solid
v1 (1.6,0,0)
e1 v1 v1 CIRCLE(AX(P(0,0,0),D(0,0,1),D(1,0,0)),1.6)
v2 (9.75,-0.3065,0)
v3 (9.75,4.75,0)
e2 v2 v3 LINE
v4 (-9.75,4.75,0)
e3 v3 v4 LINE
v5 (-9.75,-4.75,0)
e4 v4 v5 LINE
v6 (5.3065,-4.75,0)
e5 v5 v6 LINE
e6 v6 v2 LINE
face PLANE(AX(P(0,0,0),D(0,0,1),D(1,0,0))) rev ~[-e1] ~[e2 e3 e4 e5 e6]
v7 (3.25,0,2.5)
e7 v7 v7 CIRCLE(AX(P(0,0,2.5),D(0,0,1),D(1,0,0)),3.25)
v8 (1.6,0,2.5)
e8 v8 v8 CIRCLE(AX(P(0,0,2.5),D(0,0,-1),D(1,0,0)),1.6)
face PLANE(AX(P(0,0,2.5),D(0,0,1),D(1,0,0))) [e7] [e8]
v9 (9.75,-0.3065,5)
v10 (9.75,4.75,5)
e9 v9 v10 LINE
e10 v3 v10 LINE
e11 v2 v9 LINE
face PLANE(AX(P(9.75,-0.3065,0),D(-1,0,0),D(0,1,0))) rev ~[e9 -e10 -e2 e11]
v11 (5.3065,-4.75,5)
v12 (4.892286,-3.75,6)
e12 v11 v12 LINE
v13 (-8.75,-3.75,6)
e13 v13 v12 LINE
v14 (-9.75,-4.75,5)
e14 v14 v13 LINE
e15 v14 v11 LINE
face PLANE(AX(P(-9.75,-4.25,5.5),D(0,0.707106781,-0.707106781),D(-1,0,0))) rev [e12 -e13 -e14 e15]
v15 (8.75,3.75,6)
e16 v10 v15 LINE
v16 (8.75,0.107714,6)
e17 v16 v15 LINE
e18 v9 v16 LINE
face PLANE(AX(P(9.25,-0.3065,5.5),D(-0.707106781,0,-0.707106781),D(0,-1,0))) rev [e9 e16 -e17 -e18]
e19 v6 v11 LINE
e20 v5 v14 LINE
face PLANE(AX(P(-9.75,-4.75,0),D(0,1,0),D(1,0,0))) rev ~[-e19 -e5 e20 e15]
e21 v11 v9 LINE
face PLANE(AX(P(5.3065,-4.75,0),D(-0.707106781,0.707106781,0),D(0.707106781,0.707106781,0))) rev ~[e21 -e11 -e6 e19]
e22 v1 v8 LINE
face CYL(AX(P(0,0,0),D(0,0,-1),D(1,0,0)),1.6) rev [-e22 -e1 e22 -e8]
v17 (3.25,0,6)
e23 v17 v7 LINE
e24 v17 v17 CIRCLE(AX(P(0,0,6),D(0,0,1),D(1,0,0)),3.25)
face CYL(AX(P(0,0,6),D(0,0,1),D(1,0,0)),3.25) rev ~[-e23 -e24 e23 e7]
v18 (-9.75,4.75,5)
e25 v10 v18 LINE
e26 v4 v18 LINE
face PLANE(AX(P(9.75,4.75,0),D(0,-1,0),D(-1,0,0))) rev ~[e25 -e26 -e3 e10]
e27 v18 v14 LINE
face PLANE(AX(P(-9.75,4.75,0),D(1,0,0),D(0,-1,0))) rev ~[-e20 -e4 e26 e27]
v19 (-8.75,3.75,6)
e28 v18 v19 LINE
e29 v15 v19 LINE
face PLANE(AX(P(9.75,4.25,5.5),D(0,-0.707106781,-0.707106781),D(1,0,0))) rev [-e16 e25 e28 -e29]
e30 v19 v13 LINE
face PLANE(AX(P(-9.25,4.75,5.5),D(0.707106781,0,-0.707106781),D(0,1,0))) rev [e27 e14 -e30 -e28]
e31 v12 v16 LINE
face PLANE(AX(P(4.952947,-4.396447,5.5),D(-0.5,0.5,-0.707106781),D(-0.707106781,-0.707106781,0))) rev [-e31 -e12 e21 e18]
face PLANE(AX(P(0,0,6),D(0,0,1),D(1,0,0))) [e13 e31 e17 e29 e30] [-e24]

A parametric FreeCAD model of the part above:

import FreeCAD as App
import Part
import Sketcher
from FreeCAD import Vector
Q = App.Units.Quantity


def edges_at(feature, points):
    """Names of the edges that pass closest to the given points."""
    edges = feature.Shape.Edges
    near = lambda p: min(range(len(edges)), key=lambda i: edges[i].distToShape(Part.Vertex(*p))[0])
    return sorted({f"Edge{near(p) + 1}" for p in points})

doc = App.newDocument("Part")
params = doc.addObject("Spreadsheet::Sheet", "Params")
for row, (alias, value) in enumerate([
    ("sketch1_diameter", "3.2 mm"),
    ("sketch1_width", "19.5 mm"),
    ("sketch1_height", "9.5 mm"),
    ("pad1_length", "6 mm"),
    ("chamfer_size", "1 mm"),
    ("sketch2_diameter", "6.5 mm"),
    ("pocket1_length", "3.5 mm"),
], start=1):
    params.set(f"A{row}", alias)
    params.set(f"B{row}", "=" + value)
    params.setAlias(f"B{row}", alias)

body = doc.addObject("PartDesign::Body", "Body")

# Sketch on XY plane
sketch1 = body.newObject("Sketcher::SketchObject", "Sketch")
sketch1.AttachmentSupport = (doc.getObject("XY_Plane"), [""])
sketch1.MapMode = "FlatFace"
sketch1.addGeometry([
    Part.LineSegment(Vector(5.3, -4.8, 0), Vector(9.8, -0.3, 0)),  # 0
    Part.LineSegment(Vector(9.8, -0.3, 0), Vector(9.8, 4.8, 0)),  # 1
    Part.LineSegment(Vector(9.8, 4.8, 0), Vector(-9.8, 4.8, 0)),  # 2
    Part.LineSegment(Vector(-9.8, 4.8, 0), Vector(-9.8, -4.8, 0)),  # 3
    Part.LineSegment(Vector(-9.8, -4.8, 0), Vector(5.3, -4.8, 0)),  # 4
    Part.Circle(Vector(0, 0, 0), Vector(0, 0, 1), 1.6),  # 5
], False)
sketch1.addConstraint([
    Sketcher.Constraint("Coincident", 0, 2, 1, 1),
    Sketcher.Constraint("Coincident", 1, 2, 2, 1),
    Sketcher.Constraint("Coincident", 2, 2, 3, 1),
    Sketcher.Constraint("Coincident", 3, 2, 4, 1),
    Sketcher.Constraint("Coincident", 4, 2, 0, 1),
    Sketcher.Constraint("Vertical", 1),
    Sketcher.Constraint("Horizontal", 2),
    Sketcher.Constraint("Vertical", 3),
    Sketcher.Constraint("Horizontal", 4),
    Sketcher.Constraint("Coincident", 5, 3, -1, 1),
    Sketcher.Constraint("Symmetric", 1, 2, 3, 2, -1, 1),
    Sketcher.Constraint("Diameter", 5, 3.2),
    Sketcher.Constraint("Angle", 0, Q("45 deg")),
    Sketcher.Constraint("DistanceX", 2, 2, 2, 1, 19.5),
    Sketcher.Constraint("DistanceY", 3, 2, 3, 1, 9.5),
    Sketcher.Constraint("Distance", 0, 6.284),
])
sketch1.setExpression("Constraints[11]", "Params.sketch1_diameter")
sketch1.setExpression("Constraints[13]", "Params.sketch1_width")
sketch1.setExpression("Constraints[14]", "Params.sketch1_height")
pad1 = body.newObject("PartDesign::Pad", "Pad")
pad1.Profile = sketch1
pad1.setExpression("Length", "Params.pad1_length")
doc.recompute()

chamfer = body.newObject("PartDesign::Chamfer", "Chamfer")
chamfer.Base = (pad1, edges_at(pad1, [
    (-2.222, -4.75, 6),
    (7.528, -2.528, 6),
    (9.75, 2.222, 6),
    (0, 4.75, 6),
    (-9.75, 0, 6),
]))
chamfer.setExpression("Size", "Params.chamfer_size")

# Sketch on XY plane
sketch2 = body.newObject("Sketcher::SketchObject", "Sketch001")
sketch2.AttachmentSupport = (doc.getObject("XY_Plane"), [""])
sketch2.MapMode = "FlatFace"
sketch2.AttachmentOffset = App.Placement(Vector(0, 0, 6), App.Rotation())
sketch2.addGeometry(Part.Circle(Vector(0, 0, 0), Vector(0, 0, 1), 3.2), False)
sketch2.addConstraint([
    Sketcher.Constraint("Coincident", 0, 3, -1, 1),
    Sketcher.Constraint("Diameter", 0, 6.5),
])
sketch2.setExpression("Constraints[1]", "Params.sketch2_diameter")
pocket1 = body.newObject("PartDesign::Pocket", "Pocket")
pocket1.Profile = sketch2
pocket1.setExpression("Length", "Params.pocket1_length")

doc.recompute()
